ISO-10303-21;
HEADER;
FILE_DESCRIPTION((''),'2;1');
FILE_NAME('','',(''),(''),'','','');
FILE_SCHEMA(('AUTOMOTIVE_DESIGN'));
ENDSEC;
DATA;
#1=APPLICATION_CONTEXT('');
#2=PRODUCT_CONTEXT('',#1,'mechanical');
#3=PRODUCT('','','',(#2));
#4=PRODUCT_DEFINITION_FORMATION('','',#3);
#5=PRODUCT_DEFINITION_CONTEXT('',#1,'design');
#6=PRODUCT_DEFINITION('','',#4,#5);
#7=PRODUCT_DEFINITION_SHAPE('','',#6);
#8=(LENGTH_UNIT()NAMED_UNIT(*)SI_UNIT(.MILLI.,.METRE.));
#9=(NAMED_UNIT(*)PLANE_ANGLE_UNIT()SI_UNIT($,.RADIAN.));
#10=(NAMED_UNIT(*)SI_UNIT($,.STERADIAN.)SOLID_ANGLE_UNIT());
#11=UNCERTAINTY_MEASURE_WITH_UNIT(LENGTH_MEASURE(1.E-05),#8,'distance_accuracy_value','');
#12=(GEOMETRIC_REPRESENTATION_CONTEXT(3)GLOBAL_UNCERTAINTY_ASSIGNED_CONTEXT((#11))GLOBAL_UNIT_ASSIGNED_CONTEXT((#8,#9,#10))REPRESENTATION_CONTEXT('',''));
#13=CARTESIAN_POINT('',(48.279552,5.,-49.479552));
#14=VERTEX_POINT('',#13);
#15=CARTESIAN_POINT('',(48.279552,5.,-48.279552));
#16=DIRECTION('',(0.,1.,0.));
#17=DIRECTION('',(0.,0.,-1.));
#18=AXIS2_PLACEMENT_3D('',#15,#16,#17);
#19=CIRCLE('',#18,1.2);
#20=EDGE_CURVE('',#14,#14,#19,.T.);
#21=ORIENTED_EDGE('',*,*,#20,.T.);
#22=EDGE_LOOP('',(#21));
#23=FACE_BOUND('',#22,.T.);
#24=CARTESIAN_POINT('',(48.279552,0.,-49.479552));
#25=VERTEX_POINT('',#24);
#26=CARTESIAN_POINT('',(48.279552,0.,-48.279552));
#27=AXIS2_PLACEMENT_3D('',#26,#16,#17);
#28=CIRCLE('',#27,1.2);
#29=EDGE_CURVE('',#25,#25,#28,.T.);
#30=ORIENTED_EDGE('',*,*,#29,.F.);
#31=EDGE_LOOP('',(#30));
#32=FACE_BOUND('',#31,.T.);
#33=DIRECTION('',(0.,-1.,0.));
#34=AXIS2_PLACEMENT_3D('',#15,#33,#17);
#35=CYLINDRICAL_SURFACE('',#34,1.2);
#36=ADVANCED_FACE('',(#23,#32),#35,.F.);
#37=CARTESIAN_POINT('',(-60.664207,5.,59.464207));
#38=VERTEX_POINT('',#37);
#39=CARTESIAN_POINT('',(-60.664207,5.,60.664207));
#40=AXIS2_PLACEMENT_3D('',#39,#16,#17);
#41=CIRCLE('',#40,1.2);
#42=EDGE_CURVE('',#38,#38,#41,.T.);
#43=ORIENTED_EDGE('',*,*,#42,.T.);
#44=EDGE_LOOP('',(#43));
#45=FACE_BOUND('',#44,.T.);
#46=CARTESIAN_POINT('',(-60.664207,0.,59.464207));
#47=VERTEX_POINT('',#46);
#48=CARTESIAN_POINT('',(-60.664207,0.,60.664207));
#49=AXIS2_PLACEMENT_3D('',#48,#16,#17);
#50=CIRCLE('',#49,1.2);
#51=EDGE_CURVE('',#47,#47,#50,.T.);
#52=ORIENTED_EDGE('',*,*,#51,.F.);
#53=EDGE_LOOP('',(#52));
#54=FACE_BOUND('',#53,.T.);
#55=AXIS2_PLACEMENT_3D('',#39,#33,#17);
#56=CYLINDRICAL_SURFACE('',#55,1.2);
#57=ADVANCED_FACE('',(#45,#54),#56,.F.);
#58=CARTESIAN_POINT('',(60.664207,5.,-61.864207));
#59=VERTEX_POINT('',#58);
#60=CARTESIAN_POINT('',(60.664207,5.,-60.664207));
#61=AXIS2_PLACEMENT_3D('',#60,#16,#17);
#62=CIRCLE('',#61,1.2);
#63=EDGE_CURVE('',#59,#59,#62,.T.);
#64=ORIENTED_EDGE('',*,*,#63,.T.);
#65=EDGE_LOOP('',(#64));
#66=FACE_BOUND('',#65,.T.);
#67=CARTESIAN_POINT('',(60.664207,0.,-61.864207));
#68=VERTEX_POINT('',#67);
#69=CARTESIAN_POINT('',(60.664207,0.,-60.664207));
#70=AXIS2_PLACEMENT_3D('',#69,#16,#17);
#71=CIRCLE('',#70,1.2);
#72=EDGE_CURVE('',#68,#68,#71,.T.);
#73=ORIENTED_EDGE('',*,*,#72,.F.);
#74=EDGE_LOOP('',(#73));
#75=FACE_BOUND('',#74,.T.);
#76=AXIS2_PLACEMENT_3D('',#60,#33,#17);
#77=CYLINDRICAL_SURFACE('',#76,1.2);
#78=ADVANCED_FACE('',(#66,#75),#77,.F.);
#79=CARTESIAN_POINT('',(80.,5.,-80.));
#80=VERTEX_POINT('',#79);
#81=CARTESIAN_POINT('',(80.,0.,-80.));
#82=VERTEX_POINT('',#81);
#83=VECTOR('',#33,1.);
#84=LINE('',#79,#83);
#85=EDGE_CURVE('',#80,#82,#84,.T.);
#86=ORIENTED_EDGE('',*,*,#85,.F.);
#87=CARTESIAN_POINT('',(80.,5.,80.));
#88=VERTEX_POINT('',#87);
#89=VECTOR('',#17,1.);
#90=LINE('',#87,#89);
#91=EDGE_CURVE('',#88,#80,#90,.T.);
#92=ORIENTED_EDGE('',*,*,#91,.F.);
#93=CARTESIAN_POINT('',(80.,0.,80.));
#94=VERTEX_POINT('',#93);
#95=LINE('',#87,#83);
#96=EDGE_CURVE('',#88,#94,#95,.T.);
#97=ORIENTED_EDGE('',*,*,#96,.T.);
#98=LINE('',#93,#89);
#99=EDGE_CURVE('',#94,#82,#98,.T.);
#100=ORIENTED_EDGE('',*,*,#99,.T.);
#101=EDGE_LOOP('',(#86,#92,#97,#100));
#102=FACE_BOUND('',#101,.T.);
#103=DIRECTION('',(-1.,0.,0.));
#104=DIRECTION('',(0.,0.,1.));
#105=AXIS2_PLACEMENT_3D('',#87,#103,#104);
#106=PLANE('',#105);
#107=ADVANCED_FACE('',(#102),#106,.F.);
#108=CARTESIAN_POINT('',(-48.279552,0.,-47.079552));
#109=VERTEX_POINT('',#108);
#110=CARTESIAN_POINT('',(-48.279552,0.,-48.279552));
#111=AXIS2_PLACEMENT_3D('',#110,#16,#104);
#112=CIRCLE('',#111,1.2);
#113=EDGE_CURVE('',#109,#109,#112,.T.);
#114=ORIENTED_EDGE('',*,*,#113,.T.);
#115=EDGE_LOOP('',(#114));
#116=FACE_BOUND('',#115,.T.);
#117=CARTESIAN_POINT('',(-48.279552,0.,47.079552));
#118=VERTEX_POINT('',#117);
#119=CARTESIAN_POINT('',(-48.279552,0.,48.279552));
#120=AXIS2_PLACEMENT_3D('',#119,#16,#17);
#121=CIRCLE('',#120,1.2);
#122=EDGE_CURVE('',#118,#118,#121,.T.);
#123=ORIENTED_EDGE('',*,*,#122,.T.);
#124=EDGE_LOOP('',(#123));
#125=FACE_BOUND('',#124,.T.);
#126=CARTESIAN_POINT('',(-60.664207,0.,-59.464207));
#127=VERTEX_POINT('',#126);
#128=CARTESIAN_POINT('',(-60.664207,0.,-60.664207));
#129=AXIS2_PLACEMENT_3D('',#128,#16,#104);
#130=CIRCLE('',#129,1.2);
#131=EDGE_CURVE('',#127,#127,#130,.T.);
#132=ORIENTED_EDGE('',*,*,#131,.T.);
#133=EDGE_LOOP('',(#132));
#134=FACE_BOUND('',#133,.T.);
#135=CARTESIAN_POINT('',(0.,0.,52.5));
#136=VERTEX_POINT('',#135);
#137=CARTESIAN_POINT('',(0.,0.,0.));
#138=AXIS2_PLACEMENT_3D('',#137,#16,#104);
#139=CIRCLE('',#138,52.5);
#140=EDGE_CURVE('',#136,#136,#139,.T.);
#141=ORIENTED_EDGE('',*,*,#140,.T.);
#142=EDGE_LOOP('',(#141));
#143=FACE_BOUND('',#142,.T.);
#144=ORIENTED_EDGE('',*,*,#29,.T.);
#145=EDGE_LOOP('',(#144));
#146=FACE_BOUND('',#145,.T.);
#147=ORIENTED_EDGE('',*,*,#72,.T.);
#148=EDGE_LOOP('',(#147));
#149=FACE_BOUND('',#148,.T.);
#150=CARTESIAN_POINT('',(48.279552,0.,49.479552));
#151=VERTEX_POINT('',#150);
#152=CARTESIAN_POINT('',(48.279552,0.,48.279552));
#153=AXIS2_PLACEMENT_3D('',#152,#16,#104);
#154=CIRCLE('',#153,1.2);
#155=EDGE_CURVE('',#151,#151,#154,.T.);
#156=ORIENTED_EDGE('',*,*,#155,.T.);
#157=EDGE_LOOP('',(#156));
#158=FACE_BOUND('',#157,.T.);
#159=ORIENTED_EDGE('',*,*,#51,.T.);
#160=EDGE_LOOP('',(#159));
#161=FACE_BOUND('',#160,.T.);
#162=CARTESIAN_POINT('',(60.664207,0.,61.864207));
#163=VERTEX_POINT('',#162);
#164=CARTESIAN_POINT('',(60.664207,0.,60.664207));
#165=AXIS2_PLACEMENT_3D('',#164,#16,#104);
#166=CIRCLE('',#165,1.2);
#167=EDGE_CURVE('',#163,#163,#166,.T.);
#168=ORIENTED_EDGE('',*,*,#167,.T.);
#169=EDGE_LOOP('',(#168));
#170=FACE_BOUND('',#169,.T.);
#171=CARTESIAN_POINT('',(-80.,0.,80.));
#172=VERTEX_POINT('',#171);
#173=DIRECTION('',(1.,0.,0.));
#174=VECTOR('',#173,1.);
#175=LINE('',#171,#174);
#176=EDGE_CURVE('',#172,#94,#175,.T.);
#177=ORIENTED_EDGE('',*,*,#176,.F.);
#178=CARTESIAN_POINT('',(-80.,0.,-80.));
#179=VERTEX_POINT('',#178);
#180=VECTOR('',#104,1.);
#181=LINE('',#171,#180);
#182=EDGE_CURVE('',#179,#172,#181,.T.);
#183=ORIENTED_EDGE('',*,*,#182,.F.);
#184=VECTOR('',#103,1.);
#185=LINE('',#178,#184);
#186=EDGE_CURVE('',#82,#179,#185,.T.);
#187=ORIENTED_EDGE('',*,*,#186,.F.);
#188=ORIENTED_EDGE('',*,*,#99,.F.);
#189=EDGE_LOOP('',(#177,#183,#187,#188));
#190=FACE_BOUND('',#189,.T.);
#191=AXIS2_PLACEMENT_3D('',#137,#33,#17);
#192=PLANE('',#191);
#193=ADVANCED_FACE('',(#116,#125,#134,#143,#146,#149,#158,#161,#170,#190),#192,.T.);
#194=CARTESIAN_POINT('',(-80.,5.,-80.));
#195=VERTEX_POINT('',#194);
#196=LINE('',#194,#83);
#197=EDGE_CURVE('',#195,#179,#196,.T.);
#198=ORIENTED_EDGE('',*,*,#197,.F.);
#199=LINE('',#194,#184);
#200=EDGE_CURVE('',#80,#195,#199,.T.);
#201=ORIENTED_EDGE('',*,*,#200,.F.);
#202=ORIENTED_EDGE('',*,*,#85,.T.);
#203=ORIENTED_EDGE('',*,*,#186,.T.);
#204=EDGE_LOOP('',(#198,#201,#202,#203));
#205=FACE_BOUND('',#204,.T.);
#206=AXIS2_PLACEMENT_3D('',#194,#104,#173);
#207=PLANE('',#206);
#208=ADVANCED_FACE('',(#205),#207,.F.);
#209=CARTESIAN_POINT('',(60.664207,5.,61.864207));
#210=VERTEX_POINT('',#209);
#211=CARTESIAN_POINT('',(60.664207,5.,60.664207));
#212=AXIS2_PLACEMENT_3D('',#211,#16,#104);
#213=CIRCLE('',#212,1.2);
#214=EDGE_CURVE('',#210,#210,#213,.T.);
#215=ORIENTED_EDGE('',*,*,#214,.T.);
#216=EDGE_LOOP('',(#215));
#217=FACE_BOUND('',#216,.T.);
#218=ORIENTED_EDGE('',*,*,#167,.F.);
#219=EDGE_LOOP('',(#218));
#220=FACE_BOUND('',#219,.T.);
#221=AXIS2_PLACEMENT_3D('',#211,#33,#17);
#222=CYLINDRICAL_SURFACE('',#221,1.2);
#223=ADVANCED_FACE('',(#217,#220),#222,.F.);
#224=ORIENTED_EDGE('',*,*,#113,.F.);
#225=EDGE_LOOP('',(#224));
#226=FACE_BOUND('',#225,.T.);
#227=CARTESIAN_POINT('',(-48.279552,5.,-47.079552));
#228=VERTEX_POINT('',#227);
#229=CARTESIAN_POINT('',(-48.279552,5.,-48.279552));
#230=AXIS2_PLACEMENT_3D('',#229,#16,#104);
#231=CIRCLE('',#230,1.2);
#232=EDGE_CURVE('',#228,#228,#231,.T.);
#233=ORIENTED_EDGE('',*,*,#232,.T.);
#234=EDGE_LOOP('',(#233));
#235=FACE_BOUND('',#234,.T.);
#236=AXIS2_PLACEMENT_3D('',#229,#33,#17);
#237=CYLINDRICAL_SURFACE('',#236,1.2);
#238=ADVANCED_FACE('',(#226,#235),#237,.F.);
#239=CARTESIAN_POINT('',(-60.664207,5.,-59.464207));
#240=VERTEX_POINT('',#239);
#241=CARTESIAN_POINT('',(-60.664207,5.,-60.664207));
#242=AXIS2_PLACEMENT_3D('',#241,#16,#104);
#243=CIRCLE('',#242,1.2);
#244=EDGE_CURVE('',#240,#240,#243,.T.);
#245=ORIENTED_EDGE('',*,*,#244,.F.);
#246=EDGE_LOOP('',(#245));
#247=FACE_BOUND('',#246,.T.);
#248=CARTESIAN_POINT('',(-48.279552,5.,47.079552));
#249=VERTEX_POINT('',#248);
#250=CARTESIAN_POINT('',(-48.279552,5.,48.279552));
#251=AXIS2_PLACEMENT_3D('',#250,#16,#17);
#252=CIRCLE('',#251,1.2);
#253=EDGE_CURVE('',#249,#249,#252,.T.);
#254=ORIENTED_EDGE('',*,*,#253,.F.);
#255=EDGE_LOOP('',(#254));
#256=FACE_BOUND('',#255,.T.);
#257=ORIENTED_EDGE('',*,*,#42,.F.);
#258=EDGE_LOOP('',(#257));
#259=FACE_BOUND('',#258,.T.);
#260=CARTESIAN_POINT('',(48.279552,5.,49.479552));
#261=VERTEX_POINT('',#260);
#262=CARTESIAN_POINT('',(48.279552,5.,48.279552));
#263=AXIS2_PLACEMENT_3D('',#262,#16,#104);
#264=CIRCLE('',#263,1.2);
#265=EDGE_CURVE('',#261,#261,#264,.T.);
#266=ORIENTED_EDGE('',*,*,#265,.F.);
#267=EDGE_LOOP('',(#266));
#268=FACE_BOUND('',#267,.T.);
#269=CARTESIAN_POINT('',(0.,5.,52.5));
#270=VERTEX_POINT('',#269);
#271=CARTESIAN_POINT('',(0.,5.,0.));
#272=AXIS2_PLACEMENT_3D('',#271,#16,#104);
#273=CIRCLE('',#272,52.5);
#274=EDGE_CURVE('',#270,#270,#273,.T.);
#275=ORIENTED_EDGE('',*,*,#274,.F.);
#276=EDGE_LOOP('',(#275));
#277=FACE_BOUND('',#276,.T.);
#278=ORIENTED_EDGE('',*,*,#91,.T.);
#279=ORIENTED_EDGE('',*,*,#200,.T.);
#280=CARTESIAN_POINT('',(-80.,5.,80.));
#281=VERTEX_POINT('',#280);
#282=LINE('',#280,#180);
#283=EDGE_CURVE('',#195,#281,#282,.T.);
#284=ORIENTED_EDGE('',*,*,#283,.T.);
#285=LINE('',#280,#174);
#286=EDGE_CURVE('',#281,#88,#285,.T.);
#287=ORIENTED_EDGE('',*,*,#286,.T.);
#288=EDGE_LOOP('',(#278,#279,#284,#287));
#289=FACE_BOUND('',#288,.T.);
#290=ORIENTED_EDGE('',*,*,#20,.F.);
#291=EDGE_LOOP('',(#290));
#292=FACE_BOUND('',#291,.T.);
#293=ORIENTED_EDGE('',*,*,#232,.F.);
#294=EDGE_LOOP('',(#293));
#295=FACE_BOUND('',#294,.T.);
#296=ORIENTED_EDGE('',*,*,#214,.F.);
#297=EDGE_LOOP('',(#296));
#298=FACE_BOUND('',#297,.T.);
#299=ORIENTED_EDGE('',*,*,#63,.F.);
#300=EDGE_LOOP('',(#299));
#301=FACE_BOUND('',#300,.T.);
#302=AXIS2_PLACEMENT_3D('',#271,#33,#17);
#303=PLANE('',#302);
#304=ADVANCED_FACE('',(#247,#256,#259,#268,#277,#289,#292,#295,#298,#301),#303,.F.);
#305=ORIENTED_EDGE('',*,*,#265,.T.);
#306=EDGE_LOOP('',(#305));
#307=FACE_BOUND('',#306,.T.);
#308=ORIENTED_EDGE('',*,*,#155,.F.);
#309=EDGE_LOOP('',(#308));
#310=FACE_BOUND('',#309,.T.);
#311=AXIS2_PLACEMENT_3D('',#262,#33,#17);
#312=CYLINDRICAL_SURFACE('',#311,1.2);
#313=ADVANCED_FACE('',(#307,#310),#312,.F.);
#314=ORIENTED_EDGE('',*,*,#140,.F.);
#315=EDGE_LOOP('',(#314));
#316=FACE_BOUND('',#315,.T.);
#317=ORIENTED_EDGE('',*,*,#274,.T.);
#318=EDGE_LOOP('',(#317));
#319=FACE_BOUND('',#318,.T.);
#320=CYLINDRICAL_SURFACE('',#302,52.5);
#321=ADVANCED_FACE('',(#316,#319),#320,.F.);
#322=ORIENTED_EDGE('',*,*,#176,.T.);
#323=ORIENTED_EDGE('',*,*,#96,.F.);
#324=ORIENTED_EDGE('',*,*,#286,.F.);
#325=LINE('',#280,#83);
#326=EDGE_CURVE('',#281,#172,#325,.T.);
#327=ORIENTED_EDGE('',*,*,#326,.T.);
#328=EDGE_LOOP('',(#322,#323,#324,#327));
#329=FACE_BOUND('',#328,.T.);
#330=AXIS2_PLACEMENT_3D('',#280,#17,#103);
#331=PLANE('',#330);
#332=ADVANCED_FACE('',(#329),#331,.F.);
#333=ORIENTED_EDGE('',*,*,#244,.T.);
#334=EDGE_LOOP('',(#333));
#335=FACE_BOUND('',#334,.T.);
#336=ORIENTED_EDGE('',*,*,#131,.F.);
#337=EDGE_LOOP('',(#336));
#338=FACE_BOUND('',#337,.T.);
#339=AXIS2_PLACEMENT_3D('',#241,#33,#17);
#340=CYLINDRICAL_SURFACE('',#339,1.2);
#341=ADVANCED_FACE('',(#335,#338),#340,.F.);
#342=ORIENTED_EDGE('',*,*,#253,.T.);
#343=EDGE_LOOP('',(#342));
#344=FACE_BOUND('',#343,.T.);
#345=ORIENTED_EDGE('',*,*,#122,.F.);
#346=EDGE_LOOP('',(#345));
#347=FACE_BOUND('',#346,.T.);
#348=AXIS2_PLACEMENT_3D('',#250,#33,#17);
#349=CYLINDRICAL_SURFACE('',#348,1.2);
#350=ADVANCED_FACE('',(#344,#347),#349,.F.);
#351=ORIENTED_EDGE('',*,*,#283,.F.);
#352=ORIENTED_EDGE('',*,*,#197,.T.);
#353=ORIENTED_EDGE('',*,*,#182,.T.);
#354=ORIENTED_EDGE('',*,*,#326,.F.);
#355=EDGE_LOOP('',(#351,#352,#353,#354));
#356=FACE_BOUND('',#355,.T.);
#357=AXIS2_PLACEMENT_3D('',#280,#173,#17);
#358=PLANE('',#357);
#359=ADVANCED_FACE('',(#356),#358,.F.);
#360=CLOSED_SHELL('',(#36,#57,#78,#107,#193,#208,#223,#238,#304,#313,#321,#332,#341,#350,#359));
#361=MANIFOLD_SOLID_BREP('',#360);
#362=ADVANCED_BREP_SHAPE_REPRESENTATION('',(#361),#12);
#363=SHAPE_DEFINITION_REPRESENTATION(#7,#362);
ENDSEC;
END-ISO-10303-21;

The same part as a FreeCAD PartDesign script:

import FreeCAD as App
import Part
import Sketcher

doc = App.newDocument("Part")
params = doc.addObject("Spreadsheet::Sheet", "Params")
for row, (alias, value) in enumerate([
    ("sketch1_diameter", "105 mm"),
    ("sketch1_diameter2", "2.4 mm"),
    ("sketch1_width", "160 mm"),
    ("pad1_length", "5 mm"),
], start=1):
    params.set(f"A{row}", alias)
    params.set(f"B{row}", "=" + value)
    params.setAlias(f"B{row}", alias)

body = doc.addObject("PartDesign::Body", "Body")

sketch1 = body.newObject("Sketcher::SketchObject", "Sketch")
sketch1.AttachmentSupport = (doc.getObject("XZ_Plane"), [""])
sketch1.MapMode = "FlatFace"
sketch1.addGeometry([
    Part.LineSegment(App.Vector(-80, -80, 0), App.Vector(-80, 80, 0)),
    Part.LineSegment(App.Vector(-80, 80, 0), App.Vector(80, 80, 0)),
    Part.LineSegment(App.Vector(80, 80, 0), App.Vector(80, -80, 0)),
    Part.LineSegment(App.Vector(80, -80, 0), App.Vector(-80, -80, 0)),
    Part.Circle(App.Vector(-60.664207, 60.664207, 0), App.Vector(0, 0, 1), 1.2),
    Part.Circle(App.Vector(-48.279552, 48.279552, 0), App.Vector(0, 0, 1), 1.2),
    Part.Circle(App.Vector(0, 0, 0), App.Vector(0, 0, 1), 52.5),
    Part.Circle(App.Vector(60.664207, 60.664207, 0), App.Vector(0, 0, 1), 1.2),
    Part.Circle(App.Vector(48.279552, 48.279552, 0), App.Vector(0, 0, 1), 1.2),
    Part.Circle(App.Vector(-48.279552, -48.279552, 0), App.Vector(0, 0, 1), 1.2),
    Part.Circle(App.Vector(-60.664207, -60.664207, 0), App.Vector(0, 0, 1), 1.2),
    Part.Circle(App.Vector(48.279552, -48.279552, 0), App.Vector(0, 0, 1), 1.2),
    Part.Circle(App.Vector(60.664207, -60.664207, 0), App.Vector(0, 0, 1), 1.2),
], False)
sketch1.addConstraint([
    Sketcher.Constraint("Coincident", 0, 2, 1, 1),
    Sketcher.Constraint("Coincident", 1, 2, 2, 1),
    Sketcher.Constraint("Coincident", 2, 2, 3, 1),
    Sketcher.Constraint("Coincident", 3, 2, 0, 1),
    Sketcher.Constraint("Vertical", 0),
    Sketcher.Constraint("Horizontal", 1),
    Sketcher.Constraint("Vertical", 2),
    Sketcher.Constraint("Horizontal", 3),
    Sketcher.Constraint("Coincident", 6, 3, -1, 1),
    Sketcher.Constraint("Equal", 4, 5),
    Sketcher.Constraint("Equal", 5, 7),
    Sketcher.Constraint("Equal", 7, 8),
    Sketcher.Constraint("Equal", 8, 9),
    Sketcher.Constraint("Equal", 9, 10),
    Sketcher.Constraint("Equal", 10, 11),
    Sketcher.Constraint("Equal", 11, 12),
    Sketcher.Constraint("Symmetric", 8, 3, 9, 3, -1, 1),
    Sketcher.Constraint("Symmetric", 7, 3, 10, 3, -1, 1),
    Sketcher.Constraint("Symmetric", 5, 3, 11, 3, -1, 1),
    Sketcher.Constraint("Symmetric", 4, 3, 12, 3, -1, 1),
    Sketcher.Constraint("Symmetric", 0, 2, 2, 2, -1, 1),
    Sketcher.Constraint("Symmetric", 4, 3, 7, 3, -2),
    Sketcher.Constraint("Symmetric", 5, 3, 8, 3, -2),
    Sketcher.Constraint("Equal", 3, 0),
    Sketcher.Constraint("Diameter", 6, 105.0),
    Sketcher.Constraint("Diameter", 4, 2.4),
    Sketcher.Constraint("DistanceX", 1, 1, 1, 2, 160.0),
    Sketcher.Constraint("DistanceX", 5, 3, 7, 3, 108.943759),
    Sketcher.Constraint("DistanceY", 9, 3, 4, 3, 108.943759),
    Sketcher.Constraint("DistanceX", 4, 3, -1, 1, 60.664207),
    Sketcher.Constraint("DistanceY", -1, 1, 4, 3, 60.664207),
])
sketch1.setExpression("Constraints[24]", "Params.sketch1_diameter")
sketch1.setExpression("Constraints[25]", "Params.sketch1_diameter2")
sketch1.setExpression("Constraints[26]", "Params.sketch1_width")
pad1 = body.newObject("PartDesign::Pad", "Pad")
pad1.Profile = sketch1
pad1.setExpression("Length", "Params.pad1_length")
pad1.Reversed = True

doc.recompute()
